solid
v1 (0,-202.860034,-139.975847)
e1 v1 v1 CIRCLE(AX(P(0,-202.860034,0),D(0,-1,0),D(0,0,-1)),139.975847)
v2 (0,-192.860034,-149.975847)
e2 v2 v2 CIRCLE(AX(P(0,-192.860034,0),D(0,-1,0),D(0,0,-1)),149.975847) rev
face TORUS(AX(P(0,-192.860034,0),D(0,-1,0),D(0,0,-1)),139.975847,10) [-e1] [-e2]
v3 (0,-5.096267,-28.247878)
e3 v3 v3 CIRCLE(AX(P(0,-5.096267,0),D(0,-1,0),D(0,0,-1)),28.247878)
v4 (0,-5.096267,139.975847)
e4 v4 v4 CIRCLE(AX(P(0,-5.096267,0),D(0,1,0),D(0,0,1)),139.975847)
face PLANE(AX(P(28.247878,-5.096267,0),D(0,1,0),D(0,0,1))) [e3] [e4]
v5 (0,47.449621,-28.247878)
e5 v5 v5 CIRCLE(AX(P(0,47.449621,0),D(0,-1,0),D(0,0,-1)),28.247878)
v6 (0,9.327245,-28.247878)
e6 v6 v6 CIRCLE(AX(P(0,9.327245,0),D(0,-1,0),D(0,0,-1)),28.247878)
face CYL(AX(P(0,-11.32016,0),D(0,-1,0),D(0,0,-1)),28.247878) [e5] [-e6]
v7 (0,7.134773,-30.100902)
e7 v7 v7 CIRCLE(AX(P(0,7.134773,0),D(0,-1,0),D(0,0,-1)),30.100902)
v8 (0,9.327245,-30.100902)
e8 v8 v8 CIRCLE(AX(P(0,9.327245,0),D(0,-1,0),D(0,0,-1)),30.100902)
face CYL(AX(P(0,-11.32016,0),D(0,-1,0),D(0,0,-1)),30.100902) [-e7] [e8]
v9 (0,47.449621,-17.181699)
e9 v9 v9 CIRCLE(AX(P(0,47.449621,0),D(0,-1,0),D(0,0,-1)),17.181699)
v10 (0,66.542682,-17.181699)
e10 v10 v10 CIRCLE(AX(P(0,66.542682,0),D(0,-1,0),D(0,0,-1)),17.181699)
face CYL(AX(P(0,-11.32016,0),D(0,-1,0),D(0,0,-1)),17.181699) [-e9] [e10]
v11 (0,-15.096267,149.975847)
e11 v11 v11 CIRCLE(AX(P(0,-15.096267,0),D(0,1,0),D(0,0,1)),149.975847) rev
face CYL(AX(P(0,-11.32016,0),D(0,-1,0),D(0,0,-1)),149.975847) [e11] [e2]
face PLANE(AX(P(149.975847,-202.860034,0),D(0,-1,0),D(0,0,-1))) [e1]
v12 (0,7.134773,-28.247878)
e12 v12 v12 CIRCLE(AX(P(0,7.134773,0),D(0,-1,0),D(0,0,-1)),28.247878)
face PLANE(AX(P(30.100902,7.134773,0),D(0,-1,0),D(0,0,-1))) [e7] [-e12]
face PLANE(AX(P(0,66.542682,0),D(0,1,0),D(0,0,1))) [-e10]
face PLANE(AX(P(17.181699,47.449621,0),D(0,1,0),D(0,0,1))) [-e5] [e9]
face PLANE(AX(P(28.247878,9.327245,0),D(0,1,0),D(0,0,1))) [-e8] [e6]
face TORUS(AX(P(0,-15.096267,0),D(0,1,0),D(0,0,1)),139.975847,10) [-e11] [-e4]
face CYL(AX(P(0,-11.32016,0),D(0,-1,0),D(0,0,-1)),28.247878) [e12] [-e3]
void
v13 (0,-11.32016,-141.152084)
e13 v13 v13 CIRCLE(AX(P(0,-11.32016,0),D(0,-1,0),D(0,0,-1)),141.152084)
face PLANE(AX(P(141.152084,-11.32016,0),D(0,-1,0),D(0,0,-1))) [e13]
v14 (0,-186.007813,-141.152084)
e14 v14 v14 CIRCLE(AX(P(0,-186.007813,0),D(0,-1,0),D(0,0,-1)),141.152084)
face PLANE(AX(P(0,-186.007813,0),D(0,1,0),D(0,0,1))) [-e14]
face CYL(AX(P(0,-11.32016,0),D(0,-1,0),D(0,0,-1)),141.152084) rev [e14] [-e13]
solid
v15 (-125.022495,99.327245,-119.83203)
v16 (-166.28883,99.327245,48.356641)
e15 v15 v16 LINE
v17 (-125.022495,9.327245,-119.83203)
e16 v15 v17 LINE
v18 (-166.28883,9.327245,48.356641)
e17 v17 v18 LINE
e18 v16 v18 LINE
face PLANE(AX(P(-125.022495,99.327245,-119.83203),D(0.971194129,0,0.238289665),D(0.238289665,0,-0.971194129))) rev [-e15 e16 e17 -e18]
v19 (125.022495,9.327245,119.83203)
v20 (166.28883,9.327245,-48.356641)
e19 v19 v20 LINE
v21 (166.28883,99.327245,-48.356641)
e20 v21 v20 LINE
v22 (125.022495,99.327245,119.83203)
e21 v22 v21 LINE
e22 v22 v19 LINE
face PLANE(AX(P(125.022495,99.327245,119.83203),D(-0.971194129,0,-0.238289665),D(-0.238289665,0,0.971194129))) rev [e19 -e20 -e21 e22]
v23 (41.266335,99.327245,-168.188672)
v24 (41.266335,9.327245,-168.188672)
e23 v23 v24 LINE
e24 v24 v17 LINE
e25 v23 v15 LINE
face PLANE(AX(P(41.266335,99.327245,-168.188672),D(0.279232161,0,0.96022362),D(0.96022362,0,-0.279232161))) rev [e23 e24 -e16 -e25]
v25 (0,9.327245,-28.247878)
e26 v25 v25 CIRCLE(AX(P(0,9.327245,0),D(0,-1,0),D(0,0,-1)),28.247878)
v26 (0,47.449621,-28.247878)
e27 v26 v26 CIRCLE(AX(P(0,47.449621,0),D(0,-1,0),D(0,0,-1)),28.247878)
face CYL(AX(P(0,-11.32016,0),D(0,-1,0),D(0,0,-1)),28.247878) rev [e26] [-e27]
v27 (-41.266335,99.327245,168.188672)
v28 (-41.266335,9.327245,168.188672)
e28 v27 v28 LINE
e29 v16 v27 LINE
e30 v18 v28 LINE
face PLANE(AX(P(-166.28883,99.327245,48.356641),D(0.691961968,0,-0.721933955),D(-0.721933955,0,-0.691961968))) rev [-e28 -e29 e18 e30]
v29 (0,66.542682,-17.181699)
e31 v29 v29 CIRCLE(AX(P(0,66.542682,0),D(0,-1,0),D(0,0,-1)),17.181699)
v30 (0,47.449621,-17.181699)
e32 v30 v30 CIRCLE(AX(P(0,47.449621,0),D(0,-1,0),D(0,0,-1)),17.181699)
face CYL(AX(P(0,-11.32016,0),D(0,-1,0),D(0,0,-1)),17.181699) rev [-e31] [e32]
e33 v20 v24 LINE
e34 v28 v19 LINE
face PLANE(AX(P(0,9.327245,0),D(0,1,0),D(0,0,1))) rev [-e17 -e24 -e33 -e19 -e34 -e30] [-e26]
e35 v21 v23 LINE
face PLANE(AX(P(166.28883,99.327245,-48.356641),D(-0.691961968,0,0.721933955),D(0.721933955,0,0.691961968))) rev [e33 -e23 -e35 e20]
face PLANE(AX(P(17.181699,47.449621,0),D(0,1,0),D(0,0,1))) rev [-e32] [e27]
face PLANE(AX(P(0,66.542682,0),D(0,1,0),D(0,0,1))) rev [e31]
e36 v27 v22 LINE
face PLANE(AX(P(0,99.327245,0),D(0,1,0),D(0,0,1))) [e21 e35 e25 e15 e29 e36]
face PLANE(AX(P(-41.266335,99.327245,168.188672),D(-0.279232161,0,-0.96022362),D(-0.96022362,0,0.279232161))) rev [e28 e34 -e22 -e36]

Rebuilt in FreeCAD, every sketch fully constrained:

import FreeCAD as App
import Part
import Sketcher
from FreeCAD import Vector
Q = App.Units.Quantity


def edges_at(feature, points):
    """Names of the edges that pass closest to the given points."""
    edges = feature.Shape.Edges
    near = lambda p: min(range(len(edges)), key=lambda i: edges[i].distToShape(Part.Vertex(*p))[0])
    return sorted({f"Edge{near(p) + 1}" for p in points})


def add_polygon(sketch, points):
    """Adds a closed chain of lines whose ends are joined by coincident constraints."""
    first, n = sketch.GeometryCount, len(points)
    for a, b in zip(points, points[1:] + points[:1]):
        sketch.addGeometry(Part.LineSegment(App.Vector(*a, 0), App.Vector(*b, 0)), False)
    for i in range(n):
        sketch.addConstraint(Sketcher.Constraint("Coincident", first + i, 2, first + (i + 1) % n, 1))

doc = App.newDocument("Part")
body = doc.addObject("PartDesign::Body", "Body")

# Sketch on XY plane
sketch1 = body.newObject("Sketcher::SketchObject", "Sketch")
sketch1.AttachmentSupport = (doc.getObject("XY_Plane"), [""])
sketch1.MapMode = "FlatFace"
add_polygon(sketch1, [(17.2, 66.5), (0, 66.5), (0, -11.3), (141.2, -11.3), (141.2, -186), (0, -186), (0, -202.9), (150, -202.9), (150, -5.1), (28.2, -5.1), (28.2, 7.1), (30.1, 7.1), (30.1, 9.3), (28.2, 9.3), (28.2, 47.4), (17.2, 47.4)])  # lines 0-15
sketch1.addConstraint(Sketcher.Constraint("Horizontal", 0))
sketch1.addConstraint(Sketcher.Constraint("Vertical", 1))
sketch1.addConstraint(Sketcher.Constraint("Horizontal", 2))
sketch1.addConstraint(Sketcher.Constraint("Vertical", 3))
sketch1.addConstraint(Sketcher.Constraint("Horizontal", 4))
sketch1.addConstraint(Sketcher.Constraint("Vertical", 5))
sketch1.addConstraint(Sketcher.Constraint("Horizontal", 6))
sketch1.addConstraint(Sketcher.Constraint("Vertical", 7))
sketch1.addConstraint(Sketcher.Constraint("Horizontal", 8))
sketch1.addConstraint(Sketcher.Constraint("Vertical", 9))
sketch1.addConstraint(Sketcher.Constraint("Horizontal", 10))
sketch1.addConstraint(Sketcher.Constraint("Vertical", 11))
sketch1.addConstraint(Sketcher.Constraint("Horizontal", 12))
sketch1.addConstraint(Sketcher.Constraint("Vertical", 13))
sketch1.addConstraint(Sketcher.Constraint("Horizontal", 14))
sketch1.addConstraint(Sketcher.Constraint("Vertical", 15))
sketch1.addConstraint(Sketcher.Constraint("PointOnObject", 0, 2, -2))
sketch1.addConstraint(Sketcher.Constraint("PointOnObject", 4, 2, -2))
sketch1.addConstraint(Sketcher.Constraint("Vertical", 9, 2, 12, 2))
sketch1.addConstraint(Sketcher.Constraint("DistanceX", 0, 2, 0, 1, Q("17.181699 mm")))
sketch1.addConstraint(Sketcher.Constraint("DistanceX", 8, 2, 8, 1, Q("121.727969 mm")))
sketch1.addConstraint(Sketcher.Constraint("DistanceX", 14, 2, 14, 1, Q("11.066179 mm")))
sketch1.addConstraint(Sketcher.Constraint("DistanceY", 5, 2, 5, 1, Q("16.852221 mm")))
sketch1.addConstraint(Sketcher.Constraint("DistanceY", 9, 1, 9, 2, Q("12.23104 mm")))
sketch1.addConstraint(Sketcher.Constraint("DistanceY", 11, 1, 11, 2, Q("2.192472 mm")))
sketch1.addConstraint(Sketcher.Constraint("DistanceY", 15, 1, 15, 2, Q("19.093061 mm")))
sketch1.addConstraint(Sketcher.Constraint("DistanceX", 2, 1, 2, 2, Q("141.152084 mm")))
sketch1.addConstraint(Sketcher.Constraint("DistanceX", 10, 1, 10, 2, Q("1.853024 mm")))
sketch1.addConstraint(Sketcher.Constraint("DistanceY", 1, 2, 1, 1, Q("77.862842 mm")))
sketch1.addConstraint(Sketcher.Constraint("DistanceY", 3, 2, 3, 1, Q("174.687653 mm")))
sketch1.addConstraint(Sketcher.Constraint("DistanceY", 7, 1, 7, 2, Q("197.763767 mm")))
sketch1.addConstraint(Sketcher.Constraint("DistanceY", -1, 1, 0, 2, Q("66.542682 mm")))
revolution = body.newObject("PartDesign::Revolution", "Revolution")
revolution.Profile = sketch1
revolution.ReferenceAxis = (sketch1, ["V_Axis"])
revolution.Angle = 360
doc.recompute()

fillet = body.newObject("PartDesign::Fillet", "Fillet")
fillet.Base = (revolution, edges_at(revolution, [(0, -5.096, 149.976)]))
fillet.Radius = 10
doc.recompute()

fillet2 = body.newObject("PartDesign::Fillet", "Fillet001")
fillet2.Base = (fillet, edges_at(fillet, [(0, -202.86, 149.976)]))
fillet2.Radius = 10
body2 = doc.addObject("PartDesign::Body", "Body001")

# Sketch on XZ plane
sketch2 = body2.newObject("Sketcher::SketchObject", "Sketch001")
sketch2.AttachmentSupport = (doc.getObject("XZ_Plane001"), [""])
sketch2.MapMode = "FlatFace"
sketch2.AttachmentOffset = App.Placement(Vector(0, 0, -9.327245), App.Rotation())
add_polygon(sketch2, [(-125, -120), (-166, 48), (-41, 168), (125, 120), (166, -48), (41, -168)])  # lines 0-5
sketch2.addConstraint(Sketcher.Constraint("Symmetric", 0, 2, 3, 2, -1, 1))
sketch2.addConstraint(Sketcher.Constraint("Symmetric", 1, 2, 4, 2, -1, 1))
sketch2.addConstraint(Sketcher.Constraint("Symmetric", 2, 2, 5, 2, -1, 1))
sketch2.addConstraint(Sketcher.Constraint("Equal", 0, 1))
sketch2.addConstraint(Sketcher.Constraint("Equal", 1, 2))
sketch2.addConstraint(Sketcher.Constraint("DistanceY", 4, 2, 2, 2, Q("288.020702 mm")))
sketch2.addConstraint(Sketcher.Constraint("Distance", 0, Q("173.177192 mm")))
sketch2.addConstraint(Sketcher.Constraint("DistanceX", 0, 2, -1, 1, Q("166.28883 mm")))
sketch2.addConstraint(Sketcher.Constraint("DistanceY", -1, 1, 0, 2, Q("48.356641 mm")))
pad1 = body2.newObject("PartDesign::Pad", "Pad")
pad1.Profile = sketch2
pad1.Length = 90
pad1.Reversed = True

# Sketch on XY plane
sketch3 = body2.newObject("Sketcher::SketchObject", "Sketch002")
sketch3.AttachmentSupport = (doc.getObject("XY_Plane001"), [""])
sketch3.MapMode = "FlatFace"
add_polygon(sketch3, [(17.2, 66.5), (0, 66.5), (0, -11.3), (141.2, -11.3), (141.2, -186), (0, -186), (0, -202.9), (150, -202.9), (150, -5.1), (28.2, -5.1), (28.2, 7.1), (30.1, 7.1), (30.1, 9.3), (28.2, 9.3), (28.2, 47.4), (17.2, 47.4)])  # lines 0-15
sketch3.addConstraint(Sketcher.Constraint("Horizontal", 0))
sketch3.addConstraint(Sketcher.Constraint("Vertical", 1))
sketch3.addConstraint(Sketcher.Constraint("Horizontal", 2))
sketch3.addConstraint(Sketcher.Constraint("Vertical", 3))
sketch3.addConstraint(Sketcher.Constraint("Horizontal", 4))
sketch3.addConstraint(Sketcher.Constraint("Vertical", 5))
sketch3.addConstraint(Sketcher.Constraint("Horizontal", 6))
sketch3.addConstraint(Sketcher.Constraint("Vertical", 7))
sketch3.addConstraint(Sketcher.Constraint("Horizontal", 8))
sketch3.addConstraint(Sketcher.Constraint("Vertical", 9))
sketch3.addConstraint(Sketcher.Constraint("Horizontal", 10))
sketch3.addConstraint(Sketcher.Constraint("Vertical", 11))
sketch3.addConstraint(Sketcher.Constraint("Horizontal", 12))
sketch3.addConstraint(Sketcher.Constraint("Vertical", 13))
sketch3.addConstraint(Sketcher.Constraint("Horizontal", 14))
sketch3.addConstraint(Sketcher.Constraint("Vertical", 15))
sketch3.addConstraint(Sketcher.Constraint("PointOnObject", 0, 2, -2))
sketch3.addConstraint(Sketcher.Constraint("PointOnObject", 4, 2, -2))
sketch3.addConstraint(Sketcher.Constraint("Vertical", 9, 2, 12, 2))
sketch3.addConstraint(Sketcher.Constraint("DistanceX", 0, 2, 0, 1, Q("17.181699 mm")))
sketch3.addConstraint(Sketcher.Constraint("DistanceX", 8, 2, 8, 1, Q("121.727969 mm")))
sketch3.addConstraint(Sketcher.Constraint("DistanceX", 14, 2, 14, 1, Q("11.066179 mm")))
sketch3.addConstraint(Sketcher.Constraint("DistanceY", 5, 2, 5, 1, Q("16.852221 mm")))
sketch3.addConstraint(Sketcher.Constraint("DistanceY", 9, 1, 9, 2, Q("12.23104 mm")))
sketch3.addConstraint(Sketcher.Constraint("DistanceY", 11, 1, 11, 2, Q("2.192472 mm")))
sketch3.addConstraint(Sketcher.Constraint("DistanceY", 15, 1, 15, 2, Q("19.093061 mm")))
sketch3.addConstraint(Sketcher.Constraint("DistanceX", 2, 1, 2, 2, Q("141.152084 mm")))
sketch3.addConstraint(Sketcher.Constraint("DistanceX", 10, 1, 10, 2, Q("1.853024 mm")))
sketch3.addConstraint(Sketcher.Constraint("DistanceY", 1, 2, 1, 1, Q("77.862842 mm")))
sketch3.addConstraint(Sketcher.Constraint("DistanceY", 3, 2, 3, 1, Q("174.687653 mm")))
sketch3.addConstraint(Sketcher.Constraint("DistanceY", 7, 1, 7, 2, Q("197.763767 mm")))
sketch3.addConstraint(Sketcher.Constraint("DistanceY", -1, 1, 0, 2, Q("66.542682 mm")))
groove = body2.newObject("PartDesign::Groove", "Groove")
groove.Profile = sketch3
groove.ReferenceAxis = (sketch3, ["V_Axis"])
groove.Angle = 360

doc.recompute()
